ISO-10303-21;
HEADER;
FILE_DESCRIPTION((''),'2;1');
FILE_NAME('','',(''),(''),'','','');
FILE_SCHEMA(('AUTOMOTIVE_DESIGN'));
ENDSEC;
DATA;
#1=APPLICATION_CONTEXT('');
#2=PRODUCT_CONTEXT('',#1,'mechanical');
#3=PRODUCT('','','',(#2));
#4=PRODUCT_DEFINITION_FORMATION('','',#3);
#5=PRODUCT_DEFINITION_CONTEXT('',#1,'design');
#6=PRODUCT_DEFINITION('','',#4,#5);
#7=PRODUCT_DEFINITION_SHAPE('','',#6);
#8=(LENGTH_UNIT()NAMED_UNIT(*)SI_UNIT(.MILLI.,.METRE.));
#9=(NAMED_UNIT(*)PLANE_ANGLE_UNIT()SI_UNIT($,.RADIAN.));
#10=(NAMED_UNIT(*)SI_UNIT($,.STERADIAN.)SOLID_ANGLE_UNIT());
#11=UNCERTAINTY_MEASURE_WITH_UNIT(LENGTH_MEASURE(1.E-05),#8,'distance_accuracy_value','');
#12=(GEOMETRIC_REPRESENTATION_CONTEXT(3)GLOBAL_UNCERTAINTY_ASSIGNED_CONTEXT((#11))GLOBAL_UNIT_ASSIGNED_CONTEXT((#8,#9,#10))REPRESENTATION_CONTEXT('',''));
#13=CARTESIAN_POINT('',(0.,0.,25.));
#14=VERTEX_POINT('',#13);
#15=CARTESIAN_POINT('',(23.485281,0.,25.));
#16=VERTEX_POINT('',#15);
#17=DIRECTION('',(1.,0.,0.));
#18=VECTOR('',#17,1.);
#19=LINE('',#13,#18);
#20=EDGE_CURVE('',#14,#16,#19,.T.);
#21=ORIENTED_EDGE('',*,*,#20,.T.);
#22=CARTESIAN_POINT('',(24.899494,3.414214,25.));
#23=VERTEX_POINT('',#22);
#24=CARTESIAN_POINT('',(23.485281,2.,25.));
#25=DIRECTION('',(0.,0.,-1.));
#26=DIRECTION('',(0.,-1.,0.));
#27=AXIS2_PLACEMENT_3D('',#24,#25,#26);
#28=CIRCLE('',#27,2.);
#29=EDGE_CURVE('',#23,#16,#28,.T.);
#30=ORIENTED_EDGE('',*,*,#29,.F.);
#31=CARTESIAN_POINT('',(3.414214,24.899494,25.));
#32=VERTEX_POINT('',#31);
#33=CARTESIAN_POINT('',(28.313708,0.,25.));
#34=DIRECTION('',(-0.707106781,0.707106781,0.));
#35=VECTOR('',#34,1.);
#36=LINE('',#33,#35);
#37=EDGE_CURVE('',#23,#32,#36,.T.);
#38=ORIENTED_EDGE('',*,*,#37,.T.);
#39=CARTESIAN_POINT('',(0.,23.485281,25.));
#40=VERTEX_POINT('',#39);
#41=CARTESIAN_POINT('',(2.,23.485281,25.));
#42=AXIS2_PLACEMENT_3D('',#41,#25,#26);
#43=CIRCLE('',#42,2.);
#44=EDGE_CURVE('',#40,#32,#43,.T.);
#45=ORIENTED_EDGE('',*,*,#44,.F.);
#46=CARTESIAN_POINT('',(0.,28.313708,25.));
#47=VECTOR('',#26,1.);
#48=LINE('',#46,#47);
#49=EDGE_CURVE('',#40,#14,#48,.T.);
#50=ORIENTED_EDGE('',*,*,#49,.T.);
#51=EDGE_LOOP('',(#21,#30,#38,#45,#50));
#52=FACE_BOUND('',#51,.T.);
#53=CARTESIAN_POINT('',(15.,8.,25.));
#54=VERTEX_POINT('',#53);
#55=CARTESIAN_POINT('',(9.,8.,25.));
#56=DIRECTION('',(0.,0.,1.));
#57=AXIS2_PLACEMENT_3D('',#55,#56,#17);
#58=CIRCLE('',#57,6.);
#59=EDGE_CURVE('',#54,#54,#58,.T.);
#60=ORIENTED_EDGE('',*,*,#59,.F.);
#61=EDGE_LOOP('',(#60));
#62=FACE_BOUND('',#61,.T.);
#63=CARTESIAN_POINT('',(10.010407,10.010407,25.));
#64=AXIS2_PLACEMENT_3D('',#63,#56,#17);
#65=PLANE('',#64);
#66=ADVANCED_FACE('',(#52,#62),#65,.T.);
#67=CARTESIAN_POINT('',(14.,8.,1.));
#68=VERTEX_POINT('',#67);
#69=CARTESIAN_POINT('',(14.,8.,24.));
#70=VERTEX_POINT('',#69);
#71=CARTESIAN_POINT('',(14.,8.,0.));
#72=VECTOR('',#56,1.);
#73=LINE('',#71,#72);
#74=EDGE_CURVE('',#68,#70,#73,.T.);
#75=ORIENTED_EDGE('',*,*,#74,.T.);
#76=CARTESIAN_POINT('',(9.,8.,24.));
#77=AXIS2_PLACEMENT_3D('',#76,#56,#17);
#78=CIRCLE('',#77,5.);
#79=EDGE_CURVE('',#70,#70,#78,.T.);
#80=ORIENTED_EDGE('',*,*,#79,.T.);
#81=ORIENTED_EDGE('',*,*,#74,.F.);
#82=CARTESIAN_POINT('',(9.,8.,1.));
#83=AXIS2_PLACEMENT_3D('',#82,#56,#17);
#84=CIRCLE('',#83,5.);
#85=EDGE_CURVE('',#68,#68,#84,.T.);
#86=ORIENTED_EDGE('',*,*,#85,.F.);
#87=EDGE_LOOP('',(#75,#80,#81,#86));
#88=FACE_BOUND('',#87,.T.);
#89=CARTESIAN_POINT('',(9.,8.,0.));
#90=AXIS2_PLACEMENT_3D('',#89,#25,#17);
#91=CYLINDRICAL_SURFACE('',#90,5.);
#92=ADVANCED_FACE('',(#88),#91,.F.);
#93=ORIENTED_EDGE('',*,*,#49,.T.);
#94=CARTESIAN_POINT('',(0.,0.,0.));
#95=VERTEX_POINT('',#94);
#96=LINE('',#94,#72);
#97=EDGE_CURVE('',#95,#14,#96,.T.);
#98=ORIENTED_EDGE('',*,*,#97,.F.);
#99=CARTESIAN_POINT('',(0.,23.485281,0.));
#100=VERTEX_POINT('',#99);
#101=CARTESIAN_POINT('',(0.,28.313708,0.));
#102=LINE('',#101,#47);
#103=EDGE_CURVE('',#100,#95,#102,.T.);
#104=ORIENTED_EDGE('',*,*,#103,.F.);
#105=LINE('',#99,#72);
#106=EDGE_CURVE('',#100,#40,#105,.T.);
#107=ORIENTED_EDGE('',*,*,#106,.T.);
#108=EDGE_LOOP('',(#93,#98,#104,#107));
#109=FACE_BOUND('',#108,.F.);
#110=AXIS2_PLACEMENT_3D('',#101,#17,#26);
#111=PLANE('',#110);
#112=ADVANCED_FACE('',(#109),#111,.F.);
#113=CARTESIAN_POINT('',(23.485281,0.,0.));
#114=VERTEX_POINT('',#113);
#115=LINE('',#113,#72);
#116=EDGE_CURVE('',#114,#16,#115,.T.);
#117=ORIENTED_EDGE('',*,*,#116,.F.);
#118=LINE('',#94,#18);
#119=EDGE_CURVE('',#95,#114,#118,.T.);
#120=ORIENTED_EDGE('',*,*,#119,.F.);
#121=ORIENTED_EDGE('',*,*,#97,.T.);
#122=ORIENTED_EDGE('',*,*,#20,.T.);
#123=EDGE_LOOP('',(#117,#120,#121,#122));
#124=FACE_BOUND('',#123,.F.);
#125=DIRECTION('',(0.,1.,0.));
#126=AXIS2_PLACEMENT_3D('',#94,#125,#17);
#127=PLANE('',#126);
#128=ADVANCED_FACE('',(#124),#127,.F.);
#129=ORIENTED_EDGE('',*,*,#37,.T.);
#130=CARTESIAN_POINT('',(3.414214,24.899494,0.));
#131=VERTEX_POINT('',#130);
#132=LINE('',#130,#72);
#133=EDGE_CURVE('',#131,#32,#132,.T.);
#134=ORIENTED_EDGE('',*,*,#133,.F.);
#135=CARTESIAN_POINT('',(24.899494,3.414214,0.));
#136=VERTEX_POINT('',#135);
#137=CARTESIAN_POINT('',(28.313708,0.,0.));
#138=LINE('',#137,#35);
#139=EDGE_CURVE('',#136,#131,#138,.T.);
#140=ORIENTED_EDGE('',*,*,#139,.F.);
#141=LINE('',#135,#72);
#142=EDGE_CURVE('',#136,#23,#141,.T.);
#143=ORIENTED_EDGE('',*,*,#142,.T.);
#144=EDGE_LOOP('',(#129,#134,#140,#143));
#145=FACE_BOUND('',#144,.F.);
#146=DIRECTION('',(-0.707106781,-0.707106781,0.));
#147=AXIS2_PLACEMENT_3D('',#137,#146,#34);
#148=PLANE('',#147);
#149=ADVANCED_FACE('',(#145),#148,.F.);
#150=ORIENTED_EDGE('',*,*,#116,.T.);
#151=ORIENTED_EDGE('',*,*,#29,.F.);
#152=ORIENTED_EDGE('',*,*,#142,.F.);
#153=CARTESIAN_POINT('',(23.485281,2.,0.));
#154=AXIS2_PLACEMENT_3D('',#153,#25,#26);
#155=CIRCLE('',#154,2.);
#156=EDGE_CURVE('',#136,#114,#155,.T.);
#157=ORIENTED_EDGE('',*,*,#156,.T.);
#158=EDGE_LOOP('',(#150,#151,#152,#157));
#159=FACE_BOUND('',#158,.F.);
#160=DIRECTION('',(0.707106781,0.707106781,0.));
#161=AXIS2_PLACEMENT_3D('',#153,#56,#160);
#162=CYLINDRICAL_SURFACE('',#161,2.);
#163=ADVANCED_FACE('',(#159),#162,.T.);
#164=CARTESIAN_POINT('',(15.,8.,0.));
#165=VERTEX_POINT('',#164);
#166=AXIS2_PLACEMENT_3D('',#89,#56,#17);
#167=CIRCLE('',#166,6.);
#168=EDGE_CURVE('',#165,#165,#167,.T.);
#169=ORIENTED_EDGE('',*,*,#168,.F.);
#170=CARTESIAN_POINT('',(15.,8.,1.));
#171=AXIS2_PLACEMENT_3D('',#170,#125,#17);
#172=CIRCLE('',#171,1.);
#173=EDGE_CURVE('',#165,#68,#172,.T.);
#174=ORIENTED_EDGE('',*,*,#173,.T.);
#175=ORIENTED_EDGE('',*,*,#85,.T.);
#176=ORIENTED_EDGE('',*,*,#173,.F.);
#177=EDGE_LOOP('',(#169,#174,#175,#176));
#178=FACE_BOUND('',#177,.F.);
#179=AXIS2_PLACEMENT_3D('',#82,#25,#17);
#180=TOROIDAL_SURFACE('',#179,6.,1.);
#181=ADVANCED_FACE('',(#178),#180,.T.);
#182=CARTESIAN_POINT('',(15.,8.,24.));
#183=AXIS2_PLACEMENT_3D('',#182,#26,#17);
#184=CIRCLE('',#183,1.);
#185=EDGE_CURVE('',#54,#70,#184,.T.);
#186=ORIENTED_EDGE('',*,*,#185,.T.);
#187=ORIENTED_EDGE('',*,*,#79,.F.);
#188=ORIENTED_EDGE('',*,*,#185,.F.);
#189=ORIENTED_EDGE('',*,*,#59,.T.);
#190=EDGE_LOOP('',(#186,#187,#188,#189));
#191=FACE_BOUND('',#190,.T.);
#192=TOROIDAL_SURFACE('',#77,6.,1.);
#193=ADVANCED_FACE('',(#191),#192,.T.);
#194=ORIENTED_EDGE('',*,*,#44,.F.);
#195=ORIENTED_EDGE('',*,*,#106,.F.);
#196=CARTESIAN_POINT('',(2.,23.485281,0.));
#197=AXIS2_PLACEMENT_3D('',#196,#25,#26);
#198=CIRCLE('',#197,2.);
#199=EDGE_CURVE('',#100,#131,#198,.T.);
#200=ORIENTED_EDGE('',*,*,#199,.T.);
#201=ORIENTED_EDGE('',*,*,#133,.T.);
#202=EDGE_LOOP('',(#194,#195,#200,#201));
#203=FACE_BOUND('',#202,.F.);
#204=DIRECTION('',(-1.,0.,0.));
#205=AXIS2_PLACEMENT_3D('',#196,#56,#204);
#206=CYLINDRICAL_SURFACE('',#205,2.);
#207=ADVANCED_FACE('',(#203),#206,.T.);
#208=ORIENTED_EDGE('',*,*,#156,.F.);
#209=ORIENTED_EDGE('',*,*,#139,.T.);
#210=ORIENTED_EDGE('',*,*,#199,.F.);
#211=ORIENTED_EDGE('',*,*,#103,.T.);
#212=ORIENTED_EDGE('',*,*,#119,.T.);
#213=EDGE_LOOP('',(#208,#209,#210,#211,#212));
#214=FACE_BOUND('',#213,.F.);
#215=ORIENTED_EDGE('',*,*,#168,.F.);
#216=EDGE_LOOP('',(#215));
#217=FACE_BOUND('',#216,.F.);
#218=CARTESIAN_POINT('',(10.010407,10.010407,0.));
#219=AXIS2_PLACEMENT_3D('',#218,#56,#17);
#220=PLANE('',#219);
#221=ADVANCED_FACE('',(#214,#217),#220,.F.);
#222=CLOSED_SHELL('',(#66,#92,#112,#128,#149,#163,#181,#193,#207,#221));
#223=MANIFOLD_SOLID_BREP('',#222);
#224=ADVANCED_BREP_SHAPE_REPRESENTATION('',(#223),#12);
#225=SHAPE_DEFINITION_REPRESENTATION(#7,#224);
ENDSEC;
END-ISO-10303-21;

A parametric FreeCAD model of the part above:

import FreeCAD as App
import Part
import Sketcher


def edges_at(feature, points):
    """Names of the edges that pass closest to the given points."""
    edges = feature.Shape.Edges
    near = lambda p: min(range(len(edges)), key=lambda i: edges[i].distToShape(Part.Vertex(*p))[0])
    return sorted({f"Edge{near(p) + 1}" for p in points})


def add_polygon(sketch, points):
    """Adds a closed chain of lines whose ends are joined by coincident constraints."""
    first, n = sketch.GeometryCount, len(points)
    for a, b in zip(points, points[1:] + points[:1]):
        sketch.addGeometry(Part.LineSegment(App.Vector(*a, 0), App.Vector(*b, 0)), False)
    for i in range(n):
        sketch.addConstraint(Sketcher.Constraint("Coincident", first + i, 2, first + (i + 1) % n, 1))

doc = App.newDocument("Part")
body = doc.addObject("PartDesign::Body", "Body")

# Sketch on XY plane
sketch1 = body.newObject("Sketcher::SketchObject", "Sketch")
sketch1.AttachmentSupport = (doc.getObject("XY_Plane"), [""])
sketch1.MapMode = "FlatFace"
add_polygon(sketch1, [(0, 28), (0, 0), (28, 0)])  # lines 0-2
sketch1.addGeometry(Part.Circle(App.Vector(9, 8, 0), App.Vector(0, 0, 1), 5), False)  # 3
sketch1.addConstraint(Sketcher.Constraint("Vertical", 0))
sketch1.addConstraint(Sketcher.Constraint("Horizontal", 1))
sketch1.addConstraint(Sketcher.Constraint("Coincident", 0, 2, -1, 1))
sketch1.addConstraint(Sketcher.Constraint("Equal", 1, 0))
sketch1.addConstraint(Sketcher.Constraint("Diameter", 3, 10.0))
sketch1.addConstraint(Sketcher.Constraint("DistanceX", -1, 1, 3, 3, 9.0))
sketch1.addConstraint(Sketcher.Constraint("DistanceY", -1, 1, 3, 3, 8.0))
sketch1.addConstraint(Sketcher.Constraint("Distance", 2, 40.04163))
pad1 = body.newObject("PartDesign::Pad", "Pad")
pad1.Profile = sketch1
pad1.Length = 25
doc.recompute()

fillet = body.newObject("PartDesign::Fillet", "Fillet")
fillet.Base = (pad1, edges_at(pad1, [(0, 28.314, 12.5), (28.314, 0, 12.5)]))
fillet.Radius = 2
doc.recompute()

fillet2 = body.newObject("PartDesign::Fillet", "Fillet001")
fillet2.Base = (fillet, edges_at(fillet, [(14, 8, 12.5), (4, 8, 0), (4, 8, 25)]))
fillet2.Radius = 1

doc.recompute()
